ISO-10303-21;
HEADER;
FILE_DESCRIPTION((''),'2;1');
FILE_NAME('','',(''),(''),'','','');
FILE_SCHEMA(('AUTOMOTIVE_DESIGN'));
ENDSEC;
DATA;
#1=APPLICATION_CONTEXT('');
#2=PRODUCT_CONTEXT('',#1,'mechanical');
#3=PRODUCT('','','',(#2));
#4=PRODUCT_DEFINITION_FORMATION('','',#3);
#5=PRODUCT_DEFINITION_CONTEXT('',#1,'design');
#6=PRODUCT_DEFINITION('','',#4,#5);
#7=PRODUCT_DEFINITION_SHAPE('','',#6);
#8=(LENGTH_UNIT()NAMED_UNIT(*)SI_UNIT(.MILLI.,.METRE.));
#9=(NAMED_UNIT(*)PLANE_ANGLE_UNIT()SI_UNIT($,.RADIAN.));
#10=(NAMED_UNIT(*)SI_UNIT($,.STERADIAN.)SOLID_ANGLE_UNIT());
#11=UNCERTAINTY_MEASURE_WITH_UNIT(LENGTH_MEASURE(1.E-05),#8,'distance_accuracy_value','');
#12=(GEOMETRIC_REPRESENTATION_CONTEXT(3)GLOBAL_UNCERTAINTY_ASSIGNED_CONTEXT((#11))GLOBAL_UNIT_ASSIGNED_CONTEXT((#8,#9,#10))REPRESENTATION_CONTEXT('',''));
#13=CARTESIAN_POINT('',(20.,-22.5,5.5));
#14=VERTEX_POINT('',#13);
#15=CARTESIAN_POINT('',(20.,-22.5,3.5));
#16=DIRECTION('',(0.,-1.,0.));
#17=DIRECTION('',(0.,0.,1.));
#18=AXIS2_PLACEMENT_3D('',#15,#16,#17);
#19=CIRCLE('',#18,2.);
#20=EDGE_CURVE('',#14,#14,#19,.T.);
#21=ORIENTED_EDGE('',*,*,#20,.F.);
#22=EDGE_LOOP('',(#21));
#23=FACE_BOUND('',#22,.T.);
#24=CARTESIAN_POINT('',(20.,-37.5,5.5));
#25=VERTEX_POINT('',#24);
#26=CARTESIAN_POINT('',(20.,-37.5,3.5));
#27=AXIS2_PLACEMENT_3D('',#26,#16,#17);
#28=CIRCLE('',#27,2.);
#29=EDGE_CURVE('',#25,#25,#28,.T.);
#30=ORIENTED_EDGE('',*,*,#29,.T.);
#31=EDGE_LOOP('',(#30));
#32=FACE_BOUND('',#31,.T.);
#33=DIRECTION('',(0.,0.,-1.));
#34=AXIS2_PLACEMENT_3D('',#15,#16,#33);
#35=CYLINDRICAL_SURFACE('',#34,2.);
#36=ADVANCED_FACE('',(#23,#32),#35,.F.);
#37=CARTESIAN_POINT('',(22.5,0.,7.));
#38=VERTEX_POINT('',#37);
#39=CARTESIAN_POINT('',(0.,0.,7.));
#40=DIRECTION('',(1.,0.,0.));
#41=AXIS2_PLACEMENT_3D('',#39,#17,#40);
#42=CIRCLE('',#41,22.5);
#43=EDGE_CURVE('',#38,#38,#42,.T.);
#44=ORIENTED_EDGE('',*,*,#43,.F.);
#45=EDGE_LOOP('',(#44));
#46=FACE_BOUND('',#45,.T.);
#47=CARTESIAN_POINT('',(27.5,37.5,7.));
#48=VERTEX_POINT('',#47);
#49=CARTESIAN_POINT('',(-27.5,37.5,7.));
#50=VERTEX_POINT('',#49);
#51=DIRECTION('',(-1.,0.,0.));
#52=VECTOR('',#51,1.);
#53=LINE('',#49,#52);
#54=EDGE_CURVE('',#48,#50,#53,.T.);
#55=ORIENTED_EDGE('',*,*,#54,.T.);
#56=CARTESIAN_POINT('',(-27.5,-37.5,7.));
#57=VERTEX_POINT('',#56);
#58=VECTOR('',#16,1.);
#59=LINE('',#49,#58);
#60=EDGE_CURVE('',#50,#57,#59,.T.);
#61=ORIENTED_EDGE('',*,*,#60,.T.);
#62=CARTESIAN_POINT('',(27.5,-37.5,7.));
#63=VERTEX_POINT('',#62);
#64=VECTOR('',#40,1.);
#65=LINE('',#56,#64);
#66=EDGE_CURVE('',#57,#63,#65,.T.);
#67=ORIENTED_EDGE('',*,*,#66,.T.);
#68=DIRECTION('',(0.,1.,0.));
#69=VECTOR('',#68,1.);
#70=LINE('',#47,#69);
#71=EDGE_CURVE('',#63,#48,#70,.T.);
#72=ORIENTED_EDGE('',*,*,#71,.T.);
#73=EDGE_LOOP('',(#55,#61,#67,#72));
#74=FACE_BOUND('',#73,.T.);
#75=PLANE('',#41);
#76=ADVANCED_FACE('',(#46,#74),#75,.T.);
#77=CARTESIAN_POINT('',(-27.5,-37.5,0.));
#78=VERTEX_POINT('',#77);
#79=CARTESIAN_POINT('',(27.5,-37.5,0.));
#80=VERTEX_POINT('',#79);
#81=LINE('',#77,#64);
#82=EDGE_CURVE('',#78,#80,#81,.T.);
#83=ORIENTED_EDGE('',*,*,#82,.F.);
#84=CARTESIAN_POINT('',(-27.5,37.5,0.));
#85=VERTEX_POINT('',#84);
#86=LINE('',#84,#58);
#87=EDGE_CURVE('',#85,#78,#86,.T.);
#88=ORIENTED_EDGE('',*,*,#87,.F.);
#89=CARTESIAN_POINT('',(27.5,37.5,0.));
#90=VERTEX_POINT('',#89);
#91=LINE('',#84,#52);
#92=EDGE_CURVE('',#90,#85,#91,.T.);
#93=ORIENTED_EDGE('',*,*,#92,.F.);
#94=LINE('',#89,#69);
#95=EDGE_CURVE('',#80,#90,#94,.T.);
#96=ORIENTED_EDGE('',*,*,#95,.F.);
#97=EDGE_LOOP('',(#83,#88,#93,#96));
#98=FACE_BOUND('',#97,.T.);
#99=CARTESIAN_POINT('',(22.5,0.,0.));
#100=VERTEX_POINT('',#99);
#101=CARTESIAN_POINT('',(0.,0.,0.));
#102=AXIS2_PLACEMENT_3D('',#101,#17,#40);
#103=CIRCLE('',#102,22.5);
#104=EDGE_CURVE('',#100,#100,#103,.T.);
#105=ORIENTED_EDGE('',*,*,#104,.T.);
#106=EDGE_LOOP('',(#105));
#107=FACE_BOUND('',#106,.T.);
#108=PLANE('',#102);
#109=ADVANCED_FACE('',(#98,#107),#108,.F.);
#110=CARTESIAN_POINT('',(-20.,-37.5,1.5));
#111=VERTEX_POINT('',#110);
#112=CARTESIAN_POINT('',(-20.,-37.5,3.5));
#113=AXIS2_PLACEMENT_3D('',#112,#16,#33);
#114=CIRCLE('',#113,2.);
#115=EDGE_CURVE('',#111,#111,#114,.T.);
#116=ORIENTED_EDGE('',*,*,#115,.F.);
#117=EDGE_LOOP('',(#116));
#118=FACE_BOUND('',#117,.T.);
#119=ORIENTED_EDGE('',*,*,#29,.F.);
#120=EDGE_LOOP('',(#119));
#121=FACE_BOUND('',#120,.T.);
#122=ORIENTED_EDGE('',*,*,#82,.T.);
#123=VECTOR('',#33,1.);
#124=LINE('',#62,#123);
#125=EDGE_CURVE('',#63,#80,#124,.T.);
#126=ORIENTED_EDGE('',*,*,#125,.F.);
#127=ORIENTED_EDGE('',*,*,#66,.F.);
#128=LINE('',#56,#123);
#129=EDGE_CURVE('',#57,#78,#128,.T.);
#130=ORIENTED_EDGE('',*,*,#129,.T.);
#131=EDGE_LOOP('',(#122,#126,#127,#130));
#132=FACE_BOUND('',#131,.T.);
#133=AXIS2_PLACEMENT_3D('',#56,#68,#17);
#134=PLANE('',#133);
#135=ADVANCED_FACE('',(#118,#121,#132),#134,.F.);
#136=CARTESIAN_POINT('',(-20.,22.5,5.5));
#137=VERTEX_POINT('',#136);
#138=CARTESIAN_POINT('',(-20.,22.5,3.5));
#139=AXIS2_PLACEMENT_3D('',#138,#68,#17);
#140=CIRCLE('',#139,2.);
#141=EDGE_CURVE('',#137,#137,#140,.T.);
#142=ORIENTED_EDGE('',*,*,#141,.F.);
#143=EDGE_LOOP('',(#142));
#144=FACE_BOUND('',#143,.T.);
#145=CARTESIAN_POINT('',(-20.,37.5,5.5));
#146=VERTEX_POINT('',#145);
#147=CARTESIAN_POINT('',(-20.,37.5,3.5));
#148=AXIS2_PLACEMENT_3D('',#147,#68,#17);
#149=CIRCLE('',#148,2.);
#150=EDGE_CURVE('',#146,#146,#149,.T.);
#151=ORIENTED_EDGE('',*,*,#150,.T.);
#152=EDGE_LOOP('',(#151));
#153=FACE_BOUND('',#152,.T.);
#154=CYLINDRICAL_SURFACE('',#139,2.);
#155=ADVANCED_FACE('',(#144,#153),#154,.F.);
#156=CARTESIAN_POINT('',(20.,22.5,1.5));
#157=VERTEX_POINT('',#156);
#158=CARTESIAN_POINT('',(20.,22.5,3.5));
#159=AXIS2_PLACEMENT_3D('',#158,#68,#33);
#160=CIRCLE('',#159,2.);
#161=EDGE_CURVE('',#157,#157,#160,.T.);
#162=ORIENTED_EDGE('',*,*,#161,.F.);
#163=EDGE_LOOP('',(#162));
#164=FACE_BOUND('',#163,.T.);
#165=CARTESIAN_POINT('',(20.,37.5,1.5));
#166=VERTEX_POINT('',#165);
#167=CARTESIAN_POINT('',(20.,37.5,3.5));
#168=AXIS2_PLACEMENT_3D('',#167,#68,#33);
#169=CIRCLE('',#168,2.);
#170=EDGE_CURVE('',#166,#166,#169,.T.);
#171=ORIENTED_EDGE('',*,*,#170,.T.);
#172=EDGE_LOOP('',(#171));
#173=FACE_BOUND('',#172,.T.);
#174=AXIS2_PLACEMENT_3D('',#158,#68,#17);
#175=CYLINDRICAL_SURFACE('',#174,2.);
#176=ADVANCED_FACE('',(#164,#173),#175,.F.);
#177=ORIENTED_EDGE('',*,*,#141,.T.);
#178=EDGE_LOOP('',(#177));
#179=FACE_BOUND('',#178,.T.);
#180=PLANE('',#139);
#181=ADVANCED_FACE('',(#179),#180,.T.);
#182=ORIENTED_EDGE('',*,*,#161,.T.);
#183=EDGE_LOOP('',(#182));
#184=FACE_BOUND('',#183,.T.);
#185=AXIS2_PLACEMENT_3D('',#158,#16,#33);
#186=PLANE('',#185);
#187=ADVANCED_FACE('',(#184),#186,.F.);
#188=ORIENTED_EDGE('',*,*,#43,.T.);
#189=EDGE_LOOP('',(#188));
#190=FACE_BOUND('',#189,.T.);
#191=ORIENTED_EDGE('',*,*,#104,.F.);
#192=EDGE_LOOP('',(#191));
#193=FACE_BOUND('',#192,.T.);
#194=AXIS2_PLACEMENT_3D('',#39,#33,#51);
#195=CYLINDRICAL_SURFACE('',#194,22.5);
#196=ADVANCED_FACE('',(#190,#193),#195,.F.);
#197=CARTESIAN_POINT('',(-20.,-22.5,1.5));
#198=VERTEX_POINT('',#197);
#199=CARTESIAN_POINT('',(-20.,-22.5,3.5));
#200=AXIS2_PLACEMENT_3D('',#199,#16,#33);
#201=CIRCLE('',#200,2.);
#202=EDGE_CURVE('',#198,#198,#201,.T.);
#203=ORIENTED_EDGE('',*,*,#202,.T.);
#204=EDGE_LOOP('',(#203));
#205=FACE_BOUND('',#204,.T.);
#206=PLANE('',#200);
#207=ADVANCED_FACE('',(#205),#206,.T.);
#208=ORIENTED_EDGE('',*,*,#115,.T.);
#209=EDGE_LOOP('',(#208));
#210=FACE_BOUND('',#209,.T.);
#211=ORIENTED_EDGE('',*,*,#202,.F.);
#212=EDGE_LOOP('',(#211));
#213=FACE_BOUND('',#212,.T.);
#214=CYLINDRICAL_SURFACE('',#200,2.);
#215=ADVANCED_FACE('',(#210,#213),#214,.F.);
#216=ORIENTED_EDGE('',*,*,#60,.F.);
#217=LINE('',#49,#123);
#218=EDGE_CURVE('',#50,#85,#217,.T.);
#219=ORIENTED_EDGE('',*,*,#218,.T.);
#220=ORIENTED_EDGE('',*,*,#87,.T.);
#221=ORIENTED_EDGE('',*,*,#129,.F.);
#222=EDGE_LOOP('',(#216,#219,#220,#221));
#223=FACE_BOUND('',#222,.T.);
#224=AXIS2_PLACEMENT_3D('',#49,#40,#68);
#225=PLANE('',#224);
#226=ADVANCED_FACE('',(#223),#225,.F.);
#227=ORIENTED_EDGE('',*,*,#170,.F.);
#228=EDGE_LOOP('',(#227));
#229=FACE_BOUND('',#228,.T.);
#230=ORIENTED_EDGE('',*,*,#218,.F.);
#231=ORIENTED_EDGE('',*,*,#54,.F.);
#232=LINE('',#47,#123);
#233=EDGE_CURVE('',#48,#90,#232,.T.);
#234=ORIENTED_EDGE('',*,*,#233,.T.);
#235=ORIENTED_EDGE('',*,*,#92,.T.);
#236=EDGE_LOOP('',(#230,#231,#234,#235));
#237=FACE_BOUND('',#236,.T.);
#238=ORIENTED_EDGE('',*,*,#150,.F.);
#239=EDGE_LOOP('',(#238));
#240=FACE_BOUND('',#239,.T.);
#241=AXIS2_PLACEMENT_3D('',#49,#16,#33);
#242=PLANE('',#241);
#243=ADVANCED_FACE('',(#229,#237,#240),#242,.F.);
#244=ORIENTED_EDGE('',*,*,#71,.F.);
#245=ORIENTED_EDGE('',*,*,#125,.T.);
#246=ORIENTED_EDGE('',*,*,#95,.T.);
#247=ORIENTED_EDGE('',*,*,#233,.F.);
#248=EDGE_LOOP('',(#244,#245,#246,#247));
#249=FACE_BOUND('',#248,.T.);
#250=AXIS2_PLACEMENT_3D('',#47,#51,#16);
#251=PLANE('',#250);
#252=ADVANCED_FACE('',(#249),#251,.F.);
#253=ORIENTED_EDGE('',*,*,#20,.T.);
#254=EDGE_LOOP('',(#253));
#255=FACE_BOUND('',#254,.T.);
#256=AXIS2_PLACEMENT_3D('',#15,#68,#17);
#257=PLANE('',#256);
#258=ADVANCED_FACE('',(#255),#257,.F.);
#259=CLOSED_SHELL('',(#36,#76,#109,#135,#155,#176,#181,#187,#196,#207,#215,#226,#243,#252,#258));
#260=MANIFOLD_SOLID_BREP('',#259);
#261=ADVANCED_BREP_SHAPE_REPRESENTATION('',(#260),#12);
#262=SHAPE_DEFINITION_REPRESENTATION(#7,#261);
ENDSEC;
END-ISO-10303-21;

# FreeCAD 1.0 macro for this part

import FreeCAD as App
import Part
import Sketcher

V = App.Vector


def add_polygon(sketch, points):
    """Adds a closed chain of lines whose ends are joined by coincident constraints."""
    first, n = sketch.GeometryCount, len(points)
    for a, b in zip(points, points[1:] + points[:1]):
        sketch.addGeometry(Part.LineSegment(App.Vector(*a, 0), App.Vector(*b, 0)), False)
    for i in range(n):
        sketch.addConstraint(Sketcher.Constraint("Coincident", first + i, 2, first + (i + 1) % n, 1))

doc = App.newDocument("Part")
params = doc.addObject("Spreadsheet::Sheet", "Params")
for row, (alias, value) in enumerate([
    ("sketch1_diameter", "45 mm"),
    ("sketch1_width", "55 mm"),
    ("sketch1_height", "75 mm"),
    ("pad1_length", "7 mm"),
    ("sketch2_diameter", "4 mm"),
    ("pocket1_length", "15 mm"),
    ("sketch3_diameter", "4 mm"),
    ("pocket2_length", "15 mm"),
], start=1):
    params.set(f"A{row}", alias)
    params.set(f"B{row}", "=" + value)
    params.setAlias(f"B{row}", alias)

body = doc.addObject("PartDesign::Body", "Body")

sketch1 = doc.addObject("Sketcher::SketchObject", "Sketch")
body.addObject(sketch1)
sketch1.AttachmentSupport = (doc.XY_Plane, [""])
sketch1.MapMode = "FlatFace"
add_polygon(sketch1, [(-27.5, 37.5), (-27.5, -37.5), (27.5, -37.5), (27.5, 37.5)])
sketch1.addGeometry(Part.Circle(V(0, 0, 0), V(0, 0, 1), 22.5), False)
sketch1.addConstraint([
    Sketcher.Constraint("Vertical", 0),
    Sketcher.Constraint("Horizontal", 1),
    Sketcher.Constraint("Vertical", 2),
    Sketcher.Constraint("Horizontal", 3),
    Sketcher.Constraint("Coincident", 4, 3, -1, 1),
    Sketcher.Constraint("Symmetric", 0, 2, 2, 2, -1, 1),
    Sketcher.Constraint("Diameter", 4, 45.0),
    Sketcher.Constraint("DistanceX", 1, 1, 1, 2, 55.0),
    Sketcher.Constraint("DistanceY", 0, 2, 0, 1, 75.0),
])
sketch1.setExpression("Constraints[10]", "Params.sketch1_diameter")
sketch1.setExpression("Constraints[11]", "Params.sketch1_width")
sketch1.setExpression("Constraints[12]", "Params.sketch1_height")
pad1 = doc.addObject("PartDesign::Pad", "Pad")
body.addObject(pad1)
pad1.Profile = sketch1
pad1.setExpression("Length", "Params.pad1_length")

sketch2 = doc.addObject("Sketcher::SketchObject", "Sketch001")
body.addObject(sketch2)
sketch2.AttachmentSupport = (doc.XZ_Plane, [""])
sketch2.MapMode = "FlatFace"
sketch2.AttachmentOffset = App.Placement(V(0, 0, -37.5), App.Rotation())
sketch2.addGeometry([
    Part.Circle(V(-20, 3.5, 0), V(0, 0, 1), 2),
    Part.Circle(V(20, 3.5, 0), V(0, 0, 1), 2),
], False)
sketch2.addConstraint([
    Sketcher.Constraint("Equal", 0, 1),
    Sketcher.Constraint("Symmetric", 0, 3, 1, 3, -2),
    Sketcher.Constraint("Diameter", 0, 4.0),
    Sketcher.Constraint("DistanceX", 0, 3, -1, 1, 20.0),
    Sketcher.Constraint("DistanceY", -1, 1, 0, 3, 3.5),
])
sketch2.setExpression("Constraints[2]", "Params.sketch2_diameter")
pocket1 = doc.addObject("PartDesign::Pocket", "Pocket")
body.addObject(pocket1)
pocket1.Profile = sketch2
pocket1.setExpression("Length", "Params.pocket1_length")
pocket1.Reversed = True

sketch3 = doc.addObject("Sketcher::SketchObject", "Sketch002")
body.addObject(sketch3)
sketch3.AttachmentSupport = (doc.XZ_Plane, [""])
sketch3.MapMode = "FlatFace"
sketch3.AttachmentOffset = App.Placement(V(0, 0, 37.5), App.Rotation())
sketch3.addGeometry([
    Part.Circle(V(-20, 3.5, 0), V(0, 0, 1), 2),
    Part.Circle(V(20, 3.5, 0), V(0, 0, 1), 2),
], False)
sketch3.addConstraint([
    Sketcher.Constraint("Equal", 0, 1),
    Sketcher.Constraint("Symmetric", 0, 3, 1, 3, -2),
    Sketcher.Constraint("Diameter", 0, 4.0),
    Sketcher.Constraint("DistanceX", 0, 3, -1, 1, 20.0),
    Sketcher.Constraint("DistanceY", -1, 1, 0, 3, 3.5),
])
sketch3.setExpression("Constraints[2]", "Params.sketch3_diameter")
pocket2 = doc.addObject("PartDesign::Pocket", "Pocket001")
body.addObject(pocket2)
pocket2.Profile = sketch3
pocket2.setExpression("Length", "Params.pocket2_length")

doc.recompute()
